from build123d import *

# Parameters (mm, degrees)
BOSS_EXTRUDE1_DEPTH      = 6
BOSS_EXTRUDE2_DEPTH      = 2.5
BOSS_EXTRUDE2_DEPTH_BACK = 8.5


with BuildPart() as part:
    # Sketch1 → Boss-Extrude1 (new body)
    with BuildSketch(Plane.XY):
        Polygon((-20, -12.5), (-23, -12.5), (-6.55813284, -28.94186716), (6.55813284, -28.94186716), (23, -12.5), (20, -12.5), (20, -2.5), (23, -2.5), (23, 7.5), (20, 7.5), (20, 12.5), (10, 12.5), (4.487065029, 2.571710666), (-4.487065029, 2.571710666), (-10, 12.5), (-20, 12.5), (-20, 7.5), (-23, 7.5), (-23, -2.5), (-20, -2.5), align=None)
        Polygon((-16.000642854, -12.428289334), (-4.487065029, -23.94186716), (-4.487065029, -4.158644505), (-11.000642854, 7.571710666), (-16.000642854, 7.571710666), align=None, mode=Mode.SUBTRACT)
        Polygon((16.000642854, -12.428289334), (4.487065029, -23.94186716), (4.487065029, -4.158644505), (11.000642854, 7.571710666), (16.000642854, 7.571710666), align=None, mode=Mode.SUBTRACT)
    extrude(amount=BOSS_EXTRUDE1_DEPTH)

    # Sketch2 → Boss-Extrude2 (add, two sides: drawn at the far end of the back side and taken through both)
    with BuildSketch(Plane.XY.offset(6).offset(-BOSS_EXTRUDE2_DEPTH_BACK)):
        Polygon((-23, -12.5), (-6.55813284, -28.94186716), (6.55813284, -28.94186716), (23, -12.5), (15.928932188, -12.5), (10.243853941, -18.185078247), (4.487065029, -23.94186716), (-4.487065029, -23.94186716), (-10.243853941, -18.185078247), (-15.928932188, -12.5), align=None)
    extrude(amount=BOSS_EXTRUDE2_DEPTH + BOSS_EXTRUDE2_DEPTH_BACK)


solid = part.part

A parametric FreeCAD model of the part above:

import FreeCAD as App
import Part
import Sketcher

V = App.Vector
Q = App.Units.Quantity

doc = App.newDocument("Part")
params = doc.addObject("Spreadsheet::Sheet", "Params")
for row, (alias, value) in enumerate([
    ("sketch1_width", "3 mm"),
    ("sketch1_width2", "10 mm"),
    ("sketch1_width3", "5 mm"),
    ("sketch1_height", "20 mm"),
    ("pad1_length", "6 mm"),
    ("pad2_length", "2.5 mm"),
    ("pad2_length2", "8.5 mm"),
], start=1):
    params.set(f"A{row}", alias)
    params.set(f"B{row}", "=" + value)
    params.setAlias(f"B{row}", alias)

body = doc.addObject("PartDesign::Body", "Body")

# Sketch on XY plane
sketch1 = doc.addObject("Sketcher::SketchObject", "Sketch")
body.addObject(sketch1)
sketch1.AttachmentSupport = (doc.XY_Plane, [""])
sketch1.MapMode = "FlatFace"
sketch1.addGeometry([
    Part.LineSegment(V(-20, -12.5, 0), V(-23, -12.5, 0)),  # 0
    Part.LineSegment(V(-23, -12.5, 0), V(-6.6, -28.9, 0)),  # 1
    Part.LineSegment(V(-6.6, -28.9, 0), V(6.6, -28.9, 0)),  # 2
    Part.LineSegment(V(6.6, -28.9, 0), V(23, -12.5, 0)),  # 3
    Part.LineSegment(V(23, -12.5, 0), V(20, -12.5, 0)),  # 4
    Part.LineSegment(V(20, -12.5, 0), V(20, -2.5, 0)),  # 5
    Part.LineSegment(V(20, -2.5, 0), V(23, -2.5, 0)),  # 6
    Part.LineSegment(V(23, -2.5, 0), V(23, 7.5, 0)),  # 7
    Part.LineSegment(V(23, 7.5, 0), V(20, 7.5, 0)),  # 8
    Part.LineSegment(V(20, 7.5, 0), V(20, 12.5, 0)),  # 9
    Part.LineSegment(V(20, 12.5, 0), V(10, 12.5, 0)),  # 10
    Part.LineSegment(V(10, 12.5, 0), V(4.5, 2.6, 0)),  # 11
    Part.LineSegment(V(4.5, 2.6, 0), V(-4.5, 2.6, 0)),  # 12
    Part.LineSegment(V(-4.5, 2.6, 0), V(-10, 12.5, 0)),  # 13
    Part.LineSegment(V(-10, 12.5, 0), V(-20, 12.5, 0)),  # 14
    Part.LineSegment(V(-20, 12.5, 0), V(-20, 7.5, 0)),  # 15
    Part.LineSegment(V(-20, 7.5, 0), V(-23, 7.5, 0)),  # 16
    Part.LineSegment(V(-23, 7.5, 0), V(-23, -2.5, 0)),  # 17
    Part.LineSegment(V(-23, -2.5, 0), V(-20, -2.5, 0)),  # 18
    Part.LineSegment(V(-20, -2.5, 0), V(-20, -12.5, 0)),  # 19
    Part.LineSegment(V(-4.5, -23.9, 0), V(-16, -12.4, 0)),  # 20
    Part.LineSegment(V(-16, -12.4, 0), V(-16, 7.6, 0)),  # 21
    Part.LineSegment(V(-16, 7.6, 0), V(-11, 7.6, 0)),  # 22
    Part.LineSegment(V(-11, 7.6, 0), V(-4.5, -4.2, 0)),  # 23
    Part.LineSegment(V(-4.5, -4.2, 0), V(-4.5, -23.9, 0)),  # 24
    Part.LineSegment(V(16, 7.6, 0), V(16, -12.4, 0)),  # 25
    Part.LineSegment(V(16, -12.4, 0), V(4.5, -23.9, 0)),  # 26
    Part.LineSegment(V(4.5, -23.9, 0), V(4.5, -4.2, 0)),  # 27
    Part.LineSegment(V(4.5, -4.2, 0), V(11, 7.6, 0)),  # 28
    Part.LineSegment(V(11, 7.6, 0), V(16, 7.6, 0)),  # 29
], False)
sketch1.addConstraint([
    Sketcher.Constraint("Coincident", 0, 2, 1, 1),
    Sketcher.Constraint("Coincident", 1, 2, 2, 1),
    Sketcher.Constraint("Coincident", 2, 2, 3, 1),
    Sketcher.Constraint("Coincident", 3, 2, 4, 1),
    Sketcher.Constraint("Coincident", 4, 2, 5, 1),
    Sketcher.Constraint("Coincident", 5, 2, 6, 1),
    Sketcher.Constraint("Coincident", 6, 2, 7, 1),
    Sketcher.Constraint("Coincident", 7, 2, 8, 1),
    Sketcher.Constraint("Coincident", 8, 2, 9, 1),
    Sketcher.Constraint("Coincident", 9, 2, 10, 1),
    Sketcher.Constraint("Coincident", 10, 2, 11, 1),
    Sketcher.Constraint("Coincident", 11, 2, 12, 1),
    Sketcher.Constraint("Coincident", 12, 2, 13, 1),
    Sketcher.Constraint("Coincident", 13, 2, 14, 1),
    Sketcher.Constraint("Coincident", 14, 2, 15, 1),
    Sketcher.Constraint("Coincident", 15, 2, 16, 1),
    Sketcher.Constraint("Coincident", 16, 2, 17, 1),
    Sketcher.Constraint("Coincident", 17, 2, 18, 1),
    Sketcher.Constraint("Coincident", 18, 2, 19, 1),
    Sketcher.Constraint("Coincident", 19, 2, 0, 1),
    Sketcher.Constraint("Coincident", 20, 2, 21, 1),
    Sketcher.Constraint("Coincident", 21, 2, 22, 1),
    Sketcher.Constraint("Coincident", 22, 2, 23, 1),
    Sketcher.Constraint("Coincident", 23, 2, 24, 1),
    Sketcher.Constraint("Coincident", 24, 2, 20, 1),
    Sketcher.Constraint("Coincident", 25, 2, 26, 1),
    Sketcher.Constraint("Coincident", 26, 2, 27, 1),
    Sketcher.Constraint("Coincident", 27, 2, 28, 1),
    Sketcher.Constraint("Coincident", 28, 2, 29, 1),
    Sketcher.Constraint("Coincident", 29, 2, 25, 1),
    Sketcher.Constraint("Horizontal", 0),
    Sketcher.Constraint("Horizontal", 2),
    Sketcher.Constraint("Horizontal", 4),
    Sketcher.Constraint("Vertical", 5),
    Sketcher.Constraint("Horizontal", 6),
    Sketcher.Constraint("Vertical", 7),
    Sketcher.Constraint("Horizontal", 8),
    Sketcher.Constraint("Vertical", 9),
    Sketcher.Constraint("Horizontal", 10),
    Sketcher.Constraint("Horizontal", 12),
    Sketcher.Constraint("Horizontal", 14),
    Sketcher.Constraint("Vertical", 15),
    Sketcher.Constraint("Horizontal", 16),
    Sketcher.Constraint("Vertical", 17),
    Sketcher.Constraint("Horizontal", 18),
    Sketcher.Constraint("Vertical", 19),
    Sketcher.Constraint("Vertical", 21),
    Sketcher.Constraint("Horizontal", 22),
    Sketcher.Constraint("Vertical", 24),
    Sketcher.Constraint("Vertical", 25),
    Sketcher.Constraint("Vertical", 27),
    Sketcher.Constraint("Horizontal", 29),
    Sketcher.Constraint("Symmetric", 4, 2, 14, 2, -1, 1),
    Sketcher.Constraint("Symmetric", 9, 2, 19, 2, -1, 1),
    Sketcher.Constraint("Symmetric", 0, 2, 3, 2, -2),
    Sketcher.Constraint("Symmetric", 8, 2, 15, 2, -2),
    Sketcher.Constraint("Symmetric", 6, 2, 17, 2, -2),
    Sketcher.Constraint("Symmetric", 20, 2, 25, 2, -2),
    Sketcher.Constraint("Symmetric", 24, 2, 26, 2, -2),
    Sketcher.Constraint("Symmetric", 22, 2, 28, 2, -2),
    Sketcher.Constraint("Perpendicular", 1, 3),
    Sketcher.Constraint("Perpendicular", 3, 20),
    Sketcher.Constraint("Parallel", 13, 23),
    Sketcher.Constraint("Perpendicular", 20, 26),
    Sketcher.Constraint("Parallel", 11, 28),
    Sketcher.Constraint("Horizontal", 23, 2, 27, 2),
    Sketcher.Constraint("Vertical", 3, 2, 6, 2),
    Sketcher.Constraint("Vertical", 12, 2, 23, 2),
    Sketcher.Constraint("Vertical", 11, 2, 26, 2),
    Sketcher.Constraint("Equal", 14, 5),
    Sketcher.Constraint("Equal", 5, 7),
    Sketcher.Constraint("Equal", 29, 9),
    Sketcher.Constraint("DistanceX", 0, 2, 0, 1, Q("3 mm")),
    Sketcher.Constraint("DistanceX", 10, 2, 10, 1, Q("10 mm")),
    Sketcher.Constraint("DistanceX", 22, 1, 22, 2, Q("5 mm")),
    Sketcher.Constraint("DistanceY", 21, 1, 21, 2, Q("20 mm")),
    Sketcher.Constraint("DistanceX", 0, 2, -1, 1, Q("23 mm")),
    Sketcher.Constraint("DistanceY", 20, 2, 12, 2, Q("15 mm")),
    Sketcher.Constraint("DistanceY", 1, 2, 24, 2, Q("5 mm")),
    Sketcher.Constraint("DistanceX", 12, 2, 12, 1, Q("8.97413 mm")),
    Sketcher.Constraint("Distance", 1, Q("23.252312 mm")),
    Sketcher.Constraint("Distance", 23, Q("13.417449 mm")),
])
sketch1.setExpression("Constraints[72]", "Params.sketch1_width")
sketch1.setExpression("Constraints[73]", "Params.sketch1_width2")
sketch1.setExpression("Constraints[74]", "Params.sketch1_width3")
sketch1.setExpression("Constraints[75]", "Params.sketch1_height")
pad1 = doc.addObject("PartDesign::Pad", "Pad")
body.addObject(pad1)
pad1.Profile = sketch1
pad1.setExpression("Length", "Params.pad1_length")

# Sketch on XY plane
sketch2 = doc.addObject("Sketcher::SketchObject", "Sketch001")
body.addObject(sketch2)
sketch2.AttachmentSupport = (doc.XY_Plane, [""])
sketch2.MapMode = "FlatFace"
sketch2.AttachmentOffset = App.Placement(V(0, 0, 6), App.Rotation())
sketch2.addGeometry([
    Part.LineSegment(V(-23, -12, 0), V(-7, -29, 0)),  # 0
    Part.LineSegment(V(-7, -29, 0), V(7, -29, 0)),  # 1
    Part.LineSegment(V(7, -29, 0), V(23, -12, 0)),  # 2
    Part.LineSegment(V(23, -12, 0), V(16, -12, 0)),  # 3
    Part.LineSegment(V(16, -12, 0), V(10, -18, 0)),  # 4
    Part.LineSegment(V(10, -18, 0), V(4, -24, 0)),  # 5
    Part.LineSegment(V(4, -24, 0), V(-4, -24, 0)),  # 6
    Part.LineSegment(V(-4, -24, 0), V(-10, -18, 0)),  # 7
    Part.LineSegment(V(-10, -18, 0), V(-16, -12, 0)),  # 8
    Part.LineSegment(V(-16, -12, 0), V(-23, -12, 0)),  # 9
], False)
sketch2.addConstraint([
    Sketcher.Constraint("Coincident", 0, 2, 1, 1),
    Sketcher.Constraint("Coincident", 1, 2, 2, 1),
    Sketcher.Constraint("Coincident", 2, 2, 3, 1),
    Sketcher.Constraint("Coincident", 3, 2, 4, 1),
    Sketcher.Constraint("Coincident", 4, 2, 5, 1),
    Sketcher.Constraint("Coincident", 5, 2, 6, 1),
    Sketcher.Constraint("Coincident", 6, 2, 7, 1),
    Sketcher.Constraint("Coincident", 7, 2, 8, 1),
    Sketcher.Constraint("Coincident", 8, 2, 9, 1),
    Sketcher.Constraint("Coincident", 9, 2, 0, 1),
    Sketcher.Constraint("Horizontal", 1),
    Sketcher.Constraint("Horizontal", 3),
    Sketcher.Constraint("Horizontal", 6),
    Sketcher.Constraint("Horizontal", 9),
    Sketcher.Constraint("Symmetric", 4, 2, 7, 2, -2),
    Sketcher.Constraint("Symmetric", 3, 2, 8, 2, -2),
    Sketcher.Constraint("Perpendicular", 0, 2),
    Sketcher.Constraint("Parallel", 2, 4),
    Sketcher.Constraint("Parallel", 4, 5),
    Sketcher.Constraint("Perpendicular", 5, 7),
    Sketcher.Constraint("Parallel", 7, 8),
    Sketcher.Constraint("Equal", 3, 9),
    Sketcher.Constraint("DistanceX", -1, 1, 2, 2, Q("23 mm")),
    Sketcher.Constraint("DistanceY", 1, 2, 5, 2, Q("5 mm")),
    Sketcher.Constraint("DistanceY", 2, 2, -1, 1, Q("12.5 mm")),
    Sketcher.Constraint("DistanceX", 6, 2, 6, 1, Q("8.97413 mm")),
    Sketcher.Constraint("DistanceX", 1, 2, 3, 2, Q("9.370799 mm")),
    Sketcher.Constraint("Distance", 5, Q("8.141329 mm")),
])
pad2 = doc.addObject("PartDesign::Pad", "Pad001")
body.addObject(pad2)
pad2.Profile = sketch2
pad2.Type = "TwoLengths"
pad2.setExpression("Length", "Params.pad2_length")
pad2.setExpression("Length2", "Params.pad2_length2")

doc.recompute()
